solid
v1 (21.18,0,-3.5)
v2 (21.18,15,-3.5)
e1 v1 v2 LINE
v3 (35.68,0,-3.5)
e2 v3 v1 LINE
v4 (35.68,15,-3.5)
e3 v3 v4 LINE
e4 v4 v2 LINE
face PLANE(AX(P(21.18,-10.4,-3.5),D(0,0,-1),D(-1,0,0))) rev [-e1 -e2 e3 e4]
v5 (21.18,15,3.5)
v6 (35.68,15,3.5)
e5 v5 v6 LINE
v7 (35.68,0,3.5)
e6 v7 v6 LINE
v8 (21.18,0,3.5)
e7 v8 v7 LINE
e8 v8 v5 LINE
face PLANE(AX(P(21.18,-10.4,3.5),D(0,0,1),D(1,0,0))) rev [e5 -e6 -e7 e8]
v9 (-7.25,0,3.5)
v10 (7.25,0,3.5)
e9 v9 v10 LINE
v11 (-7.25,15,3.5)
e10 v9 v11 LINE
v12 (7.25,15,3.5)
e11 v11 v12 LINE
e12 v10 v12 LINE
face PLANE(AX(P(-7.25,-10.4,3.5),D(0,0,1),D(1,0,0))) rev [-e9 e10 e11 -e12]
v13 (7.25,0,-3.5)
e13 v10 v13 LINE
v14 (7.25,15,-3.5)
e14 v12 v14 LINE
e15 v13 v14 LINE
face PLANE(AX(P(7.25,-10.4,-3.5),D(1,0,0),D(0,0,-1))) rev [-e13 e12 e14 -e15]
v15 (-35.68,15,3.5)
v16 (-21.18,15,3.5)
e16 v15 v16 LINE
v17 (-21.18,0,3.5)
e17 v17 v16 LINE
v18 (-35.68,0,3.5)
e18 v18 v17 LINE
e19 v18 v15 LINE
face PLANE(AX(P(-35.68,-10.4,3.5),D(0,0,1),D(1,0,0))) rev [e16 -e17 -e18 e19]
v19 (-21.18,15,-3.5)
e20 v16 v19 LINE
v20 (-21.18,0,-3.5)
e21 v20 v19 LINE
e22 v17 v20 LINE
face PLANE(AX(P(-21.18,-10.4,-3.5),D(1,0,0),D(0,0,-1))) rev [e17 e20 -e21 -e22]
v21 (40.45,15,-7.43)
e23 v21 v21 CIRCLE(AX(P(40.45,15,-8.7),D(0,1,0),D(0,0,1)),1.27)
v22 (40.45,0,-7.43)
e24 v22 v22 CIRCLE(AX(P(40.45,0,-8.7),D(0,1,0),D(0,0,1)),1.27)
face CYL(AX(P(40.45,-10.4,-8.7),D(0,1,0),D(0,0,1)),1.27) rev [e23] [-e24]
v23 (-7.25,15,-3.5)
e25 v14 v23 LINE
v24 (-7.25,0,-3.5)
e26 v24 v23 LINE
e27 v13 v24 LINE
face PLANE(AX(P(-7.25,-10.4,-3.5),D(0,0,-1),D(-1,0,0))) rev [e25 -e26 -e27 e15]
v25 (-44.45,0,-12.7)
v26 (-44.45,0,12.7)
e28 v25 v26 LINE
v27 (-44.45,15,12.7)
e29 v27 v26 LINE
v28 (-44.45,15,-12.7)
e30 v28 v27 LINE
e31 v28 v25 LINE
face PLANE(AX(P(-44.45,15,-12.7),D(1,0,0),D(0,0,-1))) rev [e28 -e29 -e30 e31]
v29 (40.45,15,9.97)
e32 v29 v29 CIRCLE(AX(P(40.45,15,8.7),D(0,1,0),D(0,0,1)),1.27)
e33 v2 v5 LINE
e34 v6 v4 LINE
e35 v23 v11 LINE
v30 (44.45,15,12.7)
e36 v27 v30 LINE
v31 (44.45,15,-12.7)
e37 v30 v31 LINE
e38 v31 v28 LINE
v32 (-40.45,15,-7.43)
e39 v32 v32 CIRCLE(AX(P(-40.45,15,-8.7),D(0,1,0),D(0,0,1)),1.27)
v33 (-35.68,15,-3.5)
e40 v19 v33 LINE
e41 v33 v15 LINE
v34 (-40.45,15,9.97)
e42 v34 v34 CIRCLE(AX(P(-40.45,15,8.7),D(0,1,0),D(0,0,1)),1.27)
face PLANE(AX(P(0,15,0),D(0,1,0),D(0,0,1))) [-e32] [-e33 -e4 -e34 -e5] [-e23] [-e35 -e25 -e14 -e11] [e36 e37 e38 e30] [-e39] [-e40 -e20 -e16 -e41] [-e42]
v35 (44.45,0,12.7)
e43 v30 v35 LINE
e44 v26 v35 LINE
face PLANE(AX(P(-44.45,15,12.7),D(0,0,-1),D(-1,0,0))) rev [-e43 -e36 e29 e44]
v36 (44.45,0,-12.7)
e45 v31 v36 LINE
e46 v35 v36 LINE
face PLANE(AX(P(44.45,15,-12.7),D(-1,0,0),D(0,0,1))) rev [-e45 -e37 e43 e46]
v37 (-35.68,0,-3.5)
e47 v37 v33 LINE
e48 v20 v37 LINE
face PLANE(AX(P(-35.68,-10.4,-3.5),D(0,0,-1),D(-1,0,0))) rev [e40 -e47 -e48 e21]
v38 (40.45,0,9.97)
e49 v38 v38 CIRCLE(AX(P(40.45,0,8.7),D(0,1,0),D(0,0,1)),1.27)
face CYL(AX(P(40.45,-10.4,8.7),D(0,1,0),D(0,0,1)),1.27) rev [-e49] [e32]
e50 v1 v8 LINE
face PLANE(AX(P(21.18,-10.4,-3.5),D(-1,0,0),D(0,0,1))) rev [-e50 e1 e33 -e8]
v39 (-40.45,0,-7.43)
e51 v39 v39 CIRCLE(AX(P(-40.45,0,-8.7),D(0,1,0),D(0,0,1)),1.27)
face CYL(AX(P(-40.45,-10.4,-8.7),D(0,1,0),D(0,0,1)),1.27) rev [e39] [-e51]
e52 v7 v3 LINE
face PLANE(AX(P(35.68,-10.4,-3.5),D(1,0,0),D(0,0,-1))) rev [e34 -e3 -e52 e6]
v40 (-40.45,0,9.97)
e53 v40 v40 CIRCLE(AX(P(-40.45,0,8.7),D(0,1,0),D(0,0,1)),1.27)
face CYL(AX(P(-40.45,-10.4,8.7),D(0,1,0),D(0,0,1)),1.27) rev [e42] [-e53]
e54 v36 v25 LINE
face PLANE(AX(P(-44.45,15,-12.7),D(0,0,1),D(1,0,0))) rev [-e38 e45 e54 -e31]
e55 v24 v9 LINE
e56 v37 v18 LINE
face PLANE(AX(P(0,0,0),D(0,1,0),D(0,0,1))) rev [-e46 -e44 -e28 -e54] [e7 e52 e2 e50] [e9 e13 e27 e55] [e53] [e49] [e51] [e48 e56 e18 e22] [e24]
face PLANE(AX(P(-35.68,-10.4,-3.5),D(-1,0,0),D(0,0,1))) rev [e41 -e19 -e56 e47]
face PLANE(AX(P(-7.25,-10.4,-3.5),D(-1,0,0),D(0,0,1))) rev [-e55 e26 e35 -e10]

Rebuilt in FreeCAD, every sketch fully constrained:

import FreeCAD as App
import Part
import Sketcher


def add_polygon(sketch, points):
    """Adds a closed chain of lines whose ends are joined by coincident constraints."""
    first, n = sketch.GeometryCount, len(points)
    for a, b in zip(points, points[1:] + points[:1]):
        sketch.addGeometry(Part.LineSegment(App.Vector(*a, 0), App.Vector(*b, 0)), False)
    for i in range(n):
        sketch.addConstraint(Sketcher.Constraint("Coincident", first + i, 2, first + (i + 1) % n, 1))

doc = App.newDocument("Part")
params = doc.addObject("Spreadsheet::Sheet", "Params")
for row, (alias, value) in enumerate([
    ("sketch1_width", "88.9 mm"),
    ("sketch1_height", "25.4 mm"),
    ("pad1_length", "15 mm"),
    ("sketch2_height", "7 mm"),
    ("sketch2_width", "14.5 mm"),
    ("pocket1_length", "25.4 mm"),
    ("sketch3_diameter", "2.54 mm"),
    ("pocket2_length", "25.4 mm"),
], start=1):
    params.set(f"A{row}", alias)
    params.set(f"B{row}", "=" + value)
    params.setAlias(f"B{row}", alias)

body = doc.addObject("PartDesign::Body", "Body")

# Sketch on XZ plane
sketch1 = body.newObject("Sketcher::SketchObject", "Sketch")
sketch1.AttachmentSupport = (doc.getObject("XZ_Plane"), [""])
sketch1.MapMode = "FlatFace"
add_polygon(sketch1, [(-44, -13), (-44, 13), (44, 13), (44, -13)])  # lines 0-3
sketch1.addConstraint([
    Sketcher.Constraint("Vertical", 0),
    Sketcher.Constraint("Horizontal", 1),
    Sketcher.Constraint("Vertical", 2),
    Sketcher.Constraint("Horizontal", 3),
    Sketcher.Constraint("Symmetric", 0, 2, 2, 2, -1, 1),
    Sketcher.Constraint("DistanceX", 1, 1, 1, 2, 88.9),
    Sketcher.Constraint("DistanceY", 0, 1, 0, 2, 25.4),
])
sketch1.setExpression("Constraints[9]", "Params.sketch1_width")
sketch1.setExpression("Constraints[10]", "Params.sketch1_height")
pad1 = body.newObject("PartDesign::Pad", "Pad")
pad1.Profile = sketch1
pad1.setExpression("Length", "Params.pad1_length")
pad1.Reversed = True

# Sketch on XZ plane
sketch2 = body.newObject("Sketcher::SketchObject", "Sketch001")
sketch2.AttachmentSupport = (doc.getObject("XZ_Plane"), [""])
sketch2.MapMode = "FlatFace"
sketch2.AttachmentOffset = App.Placement(App.Vector(0, 0, -15), App.Rotation())
add_polygon(sketch2, [(-7, -3), (-7, 3), (7, 3), (7, -3)])  # lines 0-3
add_polygon(sketch2, [(-36, -3), (-36, 3), (-21, 3), (-21, -3)])  # lines 4-7
add_polygon(sketch2, [(21, -3), (21, 3), (36, 3), (36, -3)])  # lines 8-11
sketch2.addConstraint([
    Sketcher.Constraint("Vertical", 0),
    Sketcher.Constraint("Horizontal", 1),
    Sketcher.Constraint("Vertical", 2),
    Sketcher.Constraint("Horizontal", 3),
    Sketcher.Constraint("Vertical", 4),
    Sketcher.Constraint("Horizontal", 5),
    Sketcher.Constraint("Vertical", 6),
    Sketcher.Constraint("Horizontal", 7),
    Sketcher.Constraint("Vertical", 8),
    Sketcher.Constraint("Horizontal", 9),
    Sketcher.Constraint("Vertical", 10),
    Sketcher.Constraint("Horizontal", 11),
    Sketcher.Constraint("Symmetric", 0, 2, 2, 2, -1, 1),
    Sketcher.Constraint("Symmetric", 6, 2, 8, 2, -1, 1),
    Sketcher.Constraint("Symmetric", 4, 2, 10, 2, -1, 1),
    Sketcher.Constraint("Horizontal", 1, 2, 4, 2),
    Sketcher.Constraint("Horizontal", 3, 2, 6, 2),
    Sketcher.Constraint("Equal", 3, 5),
    Sketcher.Constraint("DistanceY", 0, 1, 0, 2, 7.0),
    Sketcher.Constraint("DistanceX", 1, 1, 1, 2, 14.5),
    Sketcher.Constraint("DistanceX", 4, 2, -1, 1, 35.68),
])
sketch2.setExpression("Constraints[30]", "Params.sketch2_height")
sketch2.setExpression("Constraints[31]", "Params.sketch2_width")
pocket1 = body.newObject("PartDesign::Pocket", "Pocket")
pocket1.Profile = sketch2
pocket1.setExpression("Length", "Params.pocket1_length")
pocket1.Reversed = True

# Sketch on XZ plane
sketch3 = body.newObject("Sketcher::SketchObject", "Sketch002")
sketch3.AttachmentSupport = (doc.getObject("XZ_Plane"), [""])
sketch3.MapMode = "FlatFace"
sketch3.AttachmentOffset = App.Placement(App.Vector(0, 0, -15), App.Rotation())
sketch3.addGeometry([
    Part.Circle(App.Vector(-40.5, -8.7, 0), App.Vector(0, 0, 1), 1.3),
    Part.Circle(App.Vector(40.5, -8.7, 0), App.Vector(0, 0, 1), 1.3),
    Part.Circle(App.Vector(-40.5, 8.7, 0), App.Vector(0, 0, 1), 1.3),
    Part.Circle(App.Vector(40.5, 8.7, 0), App.Vector(0, 0, 1), 1.3),
], False)
sketch3.addConstraint([
    Sketcher.Constraint("Equal", 0, 1),
    Sketcher.Constraint("Equal", 1, 2),
    Sketcher.Constraint("Equal", 2, 3),
    Sketcher.Constraint("Symmetric", 1, 3, 2, 3, -1, 1),
    Sketcher.Constraint("Symmetric", 0, 3, 3, 3, -1, 1),
    Sketcher.Constraint("Symmetric", 0, 3, 1, 3, -2),
    Sketcher.Constraint("Diameter", 0, 2.54),
    Sketcher.Constraint("DistanceY", 0, 3, -1, 1, 8.7),
    Sketcher.Constraint("DistanceX", 0, 3, 1, 3, 80.9),
])
sketch3.setExpression("Constraints[6]", "Params.sketch3_diameter")
pocket2 = body.newObject("PartDesign::Pocket", "Pocket001")
pocket2.Profile = sketch3
pocket2.setExpression("Length", "Params.pocket2_length")
pocket2.Reversed = True

doc.recompute()
